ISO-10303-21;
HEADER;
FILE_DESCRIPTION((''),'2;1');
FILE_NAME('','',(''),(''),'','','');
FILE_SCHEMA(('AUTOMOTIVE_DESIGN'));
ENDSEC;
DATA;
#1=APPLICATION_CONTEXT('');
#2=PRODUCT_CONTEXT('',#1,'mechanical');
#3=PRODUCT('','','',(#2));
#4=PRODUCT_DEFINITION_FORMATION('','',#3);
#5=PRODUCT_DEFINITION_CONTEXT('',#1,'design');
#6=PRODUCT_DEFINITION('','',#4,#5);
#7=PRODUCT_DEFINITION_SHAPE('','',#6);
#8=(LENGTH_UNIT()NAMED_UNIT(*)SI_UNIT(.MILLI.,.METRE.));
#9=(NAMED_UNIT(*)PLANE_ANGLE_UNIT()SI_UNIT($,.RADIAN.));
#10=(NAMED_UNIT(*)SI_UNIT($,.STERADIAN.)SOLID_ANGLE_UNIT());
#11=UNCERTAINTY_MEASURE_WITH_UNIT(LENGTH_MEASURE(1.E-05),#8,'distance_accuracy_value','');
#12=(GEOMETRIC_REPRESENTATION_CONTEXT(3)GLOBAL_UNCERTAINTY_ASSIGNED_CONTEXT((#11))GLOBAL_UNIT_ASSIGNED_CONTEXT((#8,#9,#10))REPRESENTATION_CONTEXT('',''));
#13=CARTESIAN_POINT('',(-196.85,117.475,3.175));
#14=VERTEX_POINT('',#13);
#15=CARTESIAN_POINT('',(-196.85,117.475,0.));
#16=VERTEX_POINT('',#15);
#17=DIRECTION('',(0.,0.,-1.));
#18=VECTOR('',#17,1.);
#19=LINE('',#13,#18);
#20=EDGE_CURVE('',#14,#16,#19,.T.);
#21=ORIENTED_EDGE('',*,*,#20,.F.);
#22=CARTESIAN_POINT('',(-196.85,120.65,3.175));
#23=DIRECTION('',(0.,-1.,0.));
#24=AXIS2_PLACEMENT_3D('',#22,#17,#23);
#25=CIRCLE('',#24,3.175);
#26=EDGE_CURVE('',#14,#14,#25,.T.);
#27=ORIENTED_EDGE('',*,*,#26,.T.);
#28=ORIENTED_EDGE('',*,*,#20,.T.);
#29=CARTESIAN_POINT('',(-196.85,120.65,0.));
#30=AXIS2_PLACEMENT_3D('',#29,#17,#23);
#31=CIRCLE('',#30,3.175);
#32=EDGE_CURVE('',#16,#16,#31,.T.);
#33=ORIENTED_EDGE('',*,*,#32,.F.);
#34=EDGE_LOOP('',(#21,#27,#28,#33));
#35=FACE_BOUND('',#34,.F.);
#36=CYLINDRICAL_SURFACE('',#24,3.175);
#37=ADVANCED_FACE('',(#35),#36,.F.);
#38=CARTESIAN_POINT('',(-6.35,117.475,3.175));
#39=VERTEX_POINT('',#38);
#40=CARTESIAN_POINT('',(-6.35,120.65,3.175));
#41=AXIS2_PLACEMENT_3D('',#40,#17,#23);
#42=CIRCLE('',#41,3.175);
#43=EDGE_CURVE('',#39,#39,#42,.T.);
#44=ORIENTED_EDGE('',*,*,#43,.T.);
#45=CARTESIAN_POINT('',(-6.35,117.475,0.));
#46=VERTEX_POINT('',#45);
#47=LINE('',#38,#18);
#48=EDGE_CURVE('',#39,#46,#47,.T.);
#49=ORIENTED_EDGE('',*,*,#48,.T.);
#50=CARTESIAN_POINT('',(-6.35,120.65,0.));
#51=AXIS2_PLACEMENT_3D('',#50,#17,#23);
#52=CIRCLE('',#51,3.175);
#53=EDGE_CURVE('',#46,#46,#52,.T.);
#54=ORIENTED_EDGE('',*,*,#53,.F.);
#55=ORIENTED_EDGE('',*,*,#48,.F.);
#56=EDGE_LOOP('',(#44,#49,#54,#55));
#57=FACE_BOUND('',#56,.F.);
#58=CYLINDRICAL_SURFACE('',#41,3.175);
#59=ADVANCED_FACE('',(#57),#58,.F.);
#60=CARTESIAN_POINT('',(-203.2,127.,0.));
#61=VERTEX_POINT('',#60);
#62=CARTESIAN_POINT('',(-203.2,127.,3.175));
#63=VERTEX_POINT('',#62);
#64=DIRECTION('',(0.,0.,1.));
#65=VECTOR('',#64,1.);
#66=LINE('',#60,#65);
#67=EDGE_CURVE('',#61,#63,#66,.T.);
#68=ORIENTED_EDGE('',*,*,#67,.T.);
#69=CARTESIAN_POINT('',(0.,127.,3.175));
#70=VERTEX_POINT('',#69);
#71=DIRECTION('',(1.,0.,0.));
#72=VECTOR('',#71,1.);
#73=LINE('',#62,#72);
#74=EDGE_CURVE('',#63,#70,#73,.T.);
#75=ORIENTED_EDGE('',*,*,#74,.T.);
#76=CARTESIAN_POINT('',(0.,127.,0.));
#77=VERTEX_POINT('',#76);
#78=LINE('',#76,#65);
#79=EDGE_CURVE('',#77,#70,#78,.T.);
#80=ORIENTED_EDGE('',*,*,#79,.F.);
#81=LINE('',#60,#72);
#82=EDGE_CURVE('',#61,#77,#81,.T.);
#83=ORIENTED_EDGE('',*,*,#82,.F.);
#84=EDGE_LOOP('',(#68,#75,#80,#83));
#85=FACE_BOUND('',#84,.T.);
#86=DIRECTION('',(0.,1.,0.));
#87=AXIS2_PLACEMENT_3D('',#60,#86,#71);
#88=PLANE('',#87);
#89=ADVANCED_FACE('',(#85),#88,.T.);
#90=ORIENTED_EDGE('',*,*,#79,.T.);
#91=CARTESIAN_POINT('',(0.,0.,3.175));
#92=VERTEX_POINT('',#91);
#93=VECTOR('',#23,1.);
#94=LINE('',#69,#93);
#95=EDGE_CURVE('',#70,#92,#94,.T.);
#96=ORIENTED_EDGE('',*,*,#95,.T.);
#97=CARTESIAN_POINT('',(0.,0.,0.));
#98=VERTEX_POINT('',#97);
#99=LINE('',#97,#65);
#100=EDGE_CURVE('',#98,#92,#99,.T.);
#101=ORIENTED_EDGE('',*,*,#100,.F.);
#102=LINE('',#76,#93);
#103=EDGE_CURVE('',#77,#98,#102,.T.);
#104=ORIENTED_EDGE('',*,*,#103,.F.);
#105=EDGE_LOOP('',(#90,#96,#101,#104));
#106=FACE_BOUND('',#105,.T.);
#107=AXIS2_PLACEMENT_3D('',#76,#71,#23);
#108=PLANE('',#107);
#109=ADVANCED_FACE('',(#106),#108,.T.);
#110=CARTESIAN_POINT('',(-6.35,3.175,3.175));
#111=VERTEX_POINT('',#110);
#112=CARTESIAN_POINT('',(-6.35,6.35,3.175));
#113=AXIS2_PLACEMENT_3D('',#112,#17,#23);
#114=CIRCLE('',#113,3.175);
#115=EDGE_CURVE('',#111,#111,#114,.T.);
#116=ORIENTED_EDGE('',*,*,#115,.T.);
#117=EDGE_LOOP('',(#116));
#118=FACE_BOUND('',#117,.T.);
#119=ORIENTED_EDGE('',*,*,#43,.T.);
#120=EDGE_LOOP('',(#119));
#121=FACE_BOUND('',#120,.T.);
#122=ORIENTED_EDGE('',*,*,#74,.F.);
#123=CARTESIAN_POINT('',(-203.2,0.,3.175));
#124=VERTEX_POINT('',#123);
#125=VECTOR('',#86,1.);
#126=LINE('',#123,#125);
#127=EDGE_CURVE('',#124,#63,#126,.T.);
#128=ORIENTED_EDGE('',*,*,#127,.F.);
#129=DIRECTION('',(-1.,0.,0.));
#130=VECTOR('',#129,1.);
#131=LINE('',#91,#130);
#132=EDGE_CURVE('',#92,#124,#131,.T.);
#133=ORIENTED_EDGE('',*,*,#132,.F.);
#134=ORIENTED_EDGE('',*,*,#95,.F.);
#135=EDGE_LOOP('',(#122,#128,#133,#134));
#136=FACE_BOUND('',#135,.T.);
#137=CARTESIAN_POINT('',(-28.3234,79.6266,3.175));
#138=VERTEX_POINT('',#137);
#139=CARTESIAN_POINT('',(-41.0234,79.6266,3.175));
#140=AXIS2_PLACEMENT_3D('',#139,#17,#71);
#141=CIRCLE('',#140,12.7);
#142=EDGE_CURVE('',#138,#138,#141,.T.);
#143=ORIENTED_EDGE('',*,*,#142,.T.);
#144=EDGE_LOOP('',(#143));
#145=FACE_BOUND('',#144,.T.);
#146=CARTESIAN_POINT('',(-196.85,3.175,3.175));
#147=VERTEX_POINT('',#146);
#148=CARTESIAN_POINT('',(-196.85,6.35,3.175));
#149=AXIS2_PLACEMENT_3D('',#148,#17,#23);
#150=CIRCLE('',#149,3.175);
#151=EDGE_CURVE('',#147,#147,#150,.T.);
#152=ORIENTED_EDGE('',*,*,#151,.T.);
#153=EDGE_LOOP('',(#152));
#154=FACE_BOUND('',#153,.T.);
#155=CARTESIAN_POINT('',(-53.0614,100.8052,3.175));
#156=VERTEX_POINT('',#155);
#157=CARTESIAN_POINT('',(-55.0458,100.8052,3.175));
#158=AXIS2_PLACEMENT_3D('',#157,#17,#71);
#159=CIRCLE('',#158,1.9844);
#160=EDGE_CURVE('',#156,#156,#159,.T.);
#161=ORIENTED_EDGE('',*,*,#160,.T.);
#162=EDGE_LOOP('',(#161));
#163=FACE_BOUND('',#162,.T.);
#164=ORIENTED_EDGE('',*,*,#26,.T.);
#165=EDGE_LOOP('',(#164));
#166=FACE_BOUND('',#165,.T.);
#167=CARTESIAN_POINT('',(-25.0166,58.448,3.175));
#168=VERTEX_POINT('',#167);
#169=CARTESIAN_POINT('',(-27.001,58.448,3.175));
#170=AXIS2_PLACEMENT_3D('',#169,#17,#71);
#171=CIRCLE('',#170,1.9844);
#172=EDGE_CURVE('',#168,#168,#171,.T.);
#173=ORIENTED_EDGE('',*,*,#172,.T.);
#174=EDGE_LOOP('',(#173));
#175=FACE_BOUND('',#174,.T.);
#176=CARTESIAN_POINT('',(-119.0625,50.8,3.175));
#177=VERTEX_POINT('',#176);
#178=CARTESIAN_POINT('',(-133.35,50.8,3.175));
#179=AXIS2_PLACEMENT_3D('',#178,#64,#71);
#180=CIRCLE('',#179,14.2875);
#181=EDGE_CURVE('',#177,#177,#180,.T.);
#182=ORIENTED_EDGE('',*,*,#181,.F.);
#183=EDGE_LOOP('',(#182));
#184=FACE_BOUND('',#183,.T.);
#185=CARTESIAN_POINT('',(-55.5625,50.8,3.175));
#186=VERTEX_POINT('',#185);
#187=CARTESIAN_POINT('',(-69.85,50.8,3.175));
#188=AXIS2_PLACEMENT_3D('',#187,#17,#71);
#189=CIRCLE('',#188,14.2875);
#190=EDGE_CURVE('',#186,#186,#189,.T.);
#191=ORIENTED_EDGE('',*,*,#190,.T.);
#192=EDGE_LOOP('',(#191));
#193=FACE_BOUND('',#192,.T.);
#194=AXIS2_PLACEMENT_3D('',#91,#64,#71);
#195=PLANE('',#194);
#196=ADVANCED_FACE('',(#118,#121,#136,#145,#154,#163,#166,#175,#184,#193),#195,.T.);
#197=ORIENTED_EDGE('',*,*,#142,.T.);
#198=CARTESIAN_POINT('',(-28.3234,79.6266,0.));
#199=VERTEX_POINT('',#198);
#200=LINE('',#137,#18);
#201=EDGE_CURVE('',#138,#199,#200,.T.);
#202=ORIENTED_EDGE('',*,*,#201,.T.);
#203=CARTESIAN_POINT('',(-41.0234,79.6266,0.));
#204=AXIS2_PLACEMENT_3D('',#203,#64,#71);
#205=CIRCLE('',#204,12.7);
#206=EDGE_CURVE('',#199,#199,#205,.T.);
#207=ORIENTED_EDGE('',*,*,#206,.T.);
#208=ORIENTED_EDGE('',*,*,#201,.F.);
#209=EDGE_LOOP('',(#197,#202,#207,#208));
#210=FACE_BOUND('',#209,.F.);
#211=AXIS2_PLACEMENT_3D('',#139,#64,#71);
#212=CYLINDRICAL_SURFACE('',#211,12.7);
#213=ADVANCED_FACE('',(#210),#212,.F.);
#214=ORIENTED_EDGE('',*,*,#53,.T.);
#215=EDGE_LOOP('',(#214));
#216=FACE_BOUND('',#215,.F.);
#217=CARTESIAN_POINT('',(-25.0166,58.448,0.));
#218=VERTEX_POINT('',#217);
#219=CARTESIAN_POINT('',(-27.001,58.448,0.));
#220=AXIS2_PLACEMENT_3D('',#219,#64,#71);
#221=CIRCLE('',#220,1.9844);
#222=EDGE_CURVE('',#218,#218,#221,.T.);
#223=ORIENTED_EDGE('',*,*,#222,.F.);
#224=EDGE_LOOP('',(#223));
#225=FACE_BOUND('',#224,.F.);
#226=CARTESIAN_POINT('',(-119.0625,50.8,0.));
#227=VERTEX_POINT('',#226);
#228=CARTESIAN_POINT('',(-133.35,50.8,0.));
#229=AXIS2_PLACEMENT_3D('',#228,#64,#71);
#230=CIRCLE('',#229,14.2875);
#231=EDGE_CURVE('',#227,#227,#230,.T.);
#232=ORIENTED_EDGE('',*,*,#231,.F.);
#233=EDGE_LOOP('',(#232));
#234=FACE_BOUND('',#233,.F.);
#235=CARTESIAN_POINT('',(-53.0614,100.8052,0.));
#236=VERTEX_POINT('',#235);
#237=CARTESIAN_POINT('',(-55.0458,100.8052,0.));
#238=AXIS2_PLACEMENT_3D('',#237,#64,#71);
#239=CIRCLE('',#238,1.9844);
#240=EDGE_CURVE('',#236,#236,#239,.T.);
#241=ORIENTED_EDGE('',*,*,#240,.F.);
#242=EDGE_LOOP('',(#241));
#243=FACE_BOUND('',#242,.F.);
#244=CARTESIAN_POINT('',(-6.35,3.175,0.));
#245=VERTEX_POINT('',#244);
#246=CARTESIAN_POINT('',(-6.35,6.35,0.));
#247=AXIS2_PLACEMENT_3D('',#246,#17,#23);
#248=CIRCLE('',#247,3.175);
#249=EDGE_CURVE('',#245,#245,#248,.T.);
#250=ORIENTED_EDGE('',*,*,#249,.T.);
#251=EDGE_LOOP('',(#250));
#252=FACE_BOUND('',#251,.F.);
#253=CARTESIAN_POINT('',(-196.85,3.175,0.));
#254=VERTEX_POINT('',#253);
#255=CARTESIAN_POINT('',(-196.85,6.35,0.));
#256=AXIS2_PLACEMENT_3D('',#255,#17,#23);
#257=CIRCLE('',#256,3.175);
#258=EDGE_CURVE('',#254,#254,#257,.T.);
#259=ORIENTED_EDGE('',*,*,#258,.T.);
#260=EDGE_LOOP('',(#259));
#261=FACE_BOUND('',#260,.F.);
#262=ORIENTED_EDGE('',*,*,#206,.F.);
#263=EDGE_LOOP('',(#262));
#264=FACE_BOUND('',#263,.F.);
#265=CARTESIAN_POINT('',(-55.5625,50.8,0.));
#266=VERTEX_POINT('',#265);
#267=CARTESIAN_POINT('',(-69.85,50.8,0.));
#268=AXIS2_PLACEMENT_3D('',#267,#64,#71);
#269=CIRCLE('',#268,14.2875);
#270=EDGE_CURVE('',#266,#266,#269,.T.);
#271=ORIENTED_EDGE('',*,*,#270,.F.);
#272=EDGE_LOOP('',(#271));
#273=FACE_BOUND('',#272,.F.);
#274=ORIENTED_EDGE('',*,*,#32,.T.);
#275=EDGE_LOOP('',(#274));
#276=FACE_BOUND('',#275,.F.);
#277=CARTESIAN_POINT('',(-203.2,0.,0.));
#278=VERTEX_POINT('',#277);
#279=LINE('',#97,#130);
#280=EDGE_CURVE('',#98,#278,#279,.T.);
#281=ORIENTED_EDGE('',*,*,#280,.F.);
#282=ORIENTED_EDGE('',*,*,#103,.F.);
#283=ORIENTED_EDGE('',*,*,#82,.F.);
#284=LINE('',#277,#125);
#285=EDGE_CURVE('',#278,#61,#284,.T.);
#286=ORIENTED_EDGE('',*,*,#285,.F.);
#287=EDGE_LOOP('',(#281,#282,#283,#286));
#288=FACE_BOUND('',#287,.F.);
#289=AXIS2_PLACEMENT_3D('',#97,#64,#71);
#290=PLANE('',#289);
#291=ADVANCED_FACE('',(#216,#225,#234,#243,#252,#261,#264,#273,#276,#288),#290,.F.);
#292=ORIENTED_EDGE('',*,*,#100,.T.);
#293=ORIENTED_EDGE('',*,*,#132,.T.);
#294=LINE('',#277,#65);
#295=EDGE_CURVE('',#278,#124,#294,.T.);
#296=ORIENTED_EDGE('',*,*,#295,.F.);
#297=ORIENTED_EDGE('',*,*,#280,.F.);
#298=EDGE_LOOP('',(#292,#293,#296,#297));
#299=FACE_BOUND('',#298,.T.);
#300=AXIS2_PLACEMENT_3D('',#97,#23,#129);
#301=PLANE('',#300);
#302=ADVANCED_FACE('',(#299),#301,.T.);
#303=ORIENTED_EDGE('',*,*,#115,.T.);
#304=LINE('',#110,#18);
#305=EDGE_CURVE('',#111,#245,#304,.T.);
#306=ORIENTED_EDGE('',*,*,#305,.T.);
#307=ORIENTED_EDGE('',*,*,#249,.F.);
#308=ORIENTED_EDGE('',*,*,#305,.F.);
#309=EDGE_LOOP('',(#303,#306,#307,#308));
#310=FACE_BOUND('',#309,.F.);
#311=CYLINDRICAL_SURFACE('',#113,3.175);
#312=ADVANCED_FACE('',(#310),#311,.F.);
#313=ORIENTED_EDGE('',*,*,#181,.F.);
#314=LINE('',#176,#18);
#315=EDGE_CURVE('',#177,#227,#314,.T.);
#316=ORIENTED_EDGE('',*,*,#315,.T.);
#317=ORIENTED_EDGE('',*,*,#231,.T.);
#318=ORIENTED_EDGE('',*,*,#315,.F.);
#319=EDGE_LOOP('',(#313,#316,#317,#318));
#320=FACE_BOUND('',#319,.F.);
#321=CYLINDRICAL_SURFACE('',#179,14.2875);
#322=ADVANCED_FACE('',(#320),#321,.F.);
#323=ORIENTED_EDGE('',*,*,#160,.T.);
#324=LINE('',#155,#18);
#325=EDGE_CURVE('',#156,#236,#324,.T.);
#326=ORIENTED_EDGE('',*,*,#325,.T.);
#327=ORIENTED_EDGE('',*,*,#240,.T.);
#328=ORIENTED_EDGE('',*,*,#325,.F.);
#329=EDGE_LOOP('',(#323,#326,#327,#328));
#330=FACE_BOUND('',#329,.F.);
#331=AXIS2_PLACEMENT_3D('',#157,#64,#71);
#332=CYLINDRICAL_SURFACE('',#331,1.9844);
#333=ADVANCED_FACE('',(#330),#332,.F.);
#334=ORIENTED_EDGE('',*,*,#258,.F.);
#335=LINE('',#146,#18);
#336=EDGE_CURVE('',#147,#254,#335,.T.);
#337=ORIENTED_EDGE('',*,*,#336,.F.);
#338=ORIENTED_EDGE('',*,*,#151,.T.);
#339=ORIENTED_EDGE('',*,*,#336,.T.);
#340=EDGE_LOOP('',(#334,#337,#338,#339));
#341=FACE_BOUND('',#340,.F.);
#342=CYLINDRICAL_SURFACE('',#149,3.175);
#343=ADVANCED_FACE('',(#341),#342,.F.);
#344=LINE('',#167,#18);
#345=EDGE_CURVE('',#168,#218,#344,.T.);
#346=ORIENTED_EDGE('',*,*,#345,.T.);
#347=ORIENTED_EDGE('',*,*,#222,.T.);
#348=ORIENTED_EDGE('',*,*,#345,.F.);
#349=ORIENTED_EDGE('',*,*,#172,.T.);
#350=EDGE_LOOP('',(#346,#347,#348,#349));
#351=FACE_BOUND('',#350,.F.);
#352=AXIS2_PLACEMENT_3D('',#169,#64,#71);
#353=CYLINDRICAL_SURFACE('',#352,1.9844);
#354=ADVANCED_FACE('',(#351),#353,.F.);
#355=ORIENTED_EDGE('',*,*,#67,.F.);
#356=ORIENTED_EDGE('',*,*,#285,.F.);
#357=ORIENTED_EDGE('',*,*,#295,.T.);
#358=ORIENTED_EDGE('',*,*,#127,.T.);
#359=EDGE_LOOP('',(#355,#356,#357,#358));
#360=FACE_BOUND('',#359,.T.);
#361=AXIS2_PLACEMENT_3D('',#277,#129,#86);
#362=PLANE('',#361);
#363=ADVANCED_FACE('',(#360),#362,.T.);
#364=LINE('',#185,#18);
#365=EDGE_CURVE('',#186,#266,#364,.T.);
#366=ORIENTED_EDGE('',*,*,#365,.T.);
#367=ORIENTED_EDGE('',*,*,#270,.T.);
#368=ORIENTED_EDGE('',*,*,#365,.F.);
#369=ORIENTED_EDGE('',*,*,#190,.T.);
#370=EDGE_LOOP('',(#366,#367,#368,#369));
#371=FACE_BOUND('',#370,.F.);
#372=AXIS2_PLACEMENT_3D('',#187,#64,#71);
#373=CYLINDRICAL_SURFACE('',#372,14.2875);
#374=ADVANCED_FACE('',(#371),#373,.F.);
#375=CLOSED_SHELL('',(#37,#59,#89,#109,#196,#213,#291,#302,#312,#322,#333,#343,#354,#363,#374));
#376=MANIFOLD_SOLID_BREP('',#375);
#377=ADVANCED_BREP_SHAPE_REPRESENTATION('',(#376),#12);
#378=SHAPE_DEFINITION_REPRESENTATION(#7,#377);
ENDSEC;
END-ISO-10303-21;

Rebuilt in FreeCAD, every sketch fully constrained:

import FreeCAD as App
import Part
import Sketcher

V = App.Vector
Q = App.Units.Quantity


def add_polygon(sketch, points):
    """Adds a closed chain of lines whose ends are joined by coincident constraints."""
    first, n = sketch.GeometryCount, len(points)
    for a, b in zip(points, points[1:] + points[:1]):
        sketch.addGeometry(Part.LineSegment(App.Vector(*a, 0), App.Vector(*b, 0)), False)
    for i in range(n):
        sketch.addConstraint(Sketcher.Constraint("Coincident", first + i, 2, first + (i + 1) % n, 1))

doc = App.newDocument("Part")
body = doc.addObject("PartDesign::Body", "Body")

# Sketch on XY plane
sketch1 = body.newObject("Sketcher::SketchObject", "Sketch")
sketch1.AttachmentSupport = (doc.getObject("XY_Plane"), [""])
sketch1.MapMode = "FlatFace"
add_polygon(sketch1, [(-203, 0), (0, 0), (0, 127), (-203, 127)])  # lines 0-3
sketch1.addConstraint([
    Sketcher.Constraint("Horizontal", 0),
    Sketcher.Constraint("Vertical", 1),
    Sketcher.Constraint("Horizontal", 2),
    Sketcher.Constraint("Vertical", 3),
    Sketcher.Constraint("Coincident", 0, 2, -1, 1),
    Sketcher.Constraint("DistanceX", 0, 1, 0, 2, Q("8 in")),
    Sketcher.Constraint("DistanceY", 1, 1, 1, 2, Q("5 in")),
])
pad1 = body.newObject("PartDesign::Pad", "Pad")
pad1.Profile = sketch1
pad1.Length = Q("0.125 in")

# Sketch on XY plane
sketch2 = body.newObject("Sketcher::SketchObject", "Sketch001")
sketch2.AttachmentSupport = (doc.getObject("XY_Plane"), [""])
sketch2.MapMode = "FlatFace"
sketch2.AttachmentOffset = App.Placement(V(0, 0, 0.125 * 25.4), App.Rotation())
sketch2.addGeometry([
    Part.Circle(V(-70, 51, 0), V(0, 0, 1), 14),
    Part.Circle(V(-133, 51, 0), V(0, 0, 1), 14),
], False)
sketch2.addConstraint([
    Sketcher.Constraint("Equal", 0, 1),
    Sketcher.Constraint("Horizontal", 0, 3, 1, 3),
    Sketcher.Constraint("Diameter", 0, Q("1.125 in")),
    Sketcher.Constraint("DistanceY", -1, 1, 0, 3, Q("2 in")),
    Sketcher.Constraint("DistanceX", 1, 3, 0, 3, Q("2.5 in")),
    Sketcher.Constraint("DistanceX", 0, 3, -1, 1, Q("2.75 in")),
])
pocket1 = body.newObject("PartDesign::Pocket", "Pocket")
pocket1.Profile = sketch2
pocket1.Length = Q("0.125 in")

# Sketch on XY plane
sketch3 = body.newObject("Sketcher::SketchObject", "Sketch002")
sketch3.AttachmentSupport = (doc.getObject("XY_Plane"), [""])
sketch3.MapMode = "FlatFace"
sketch3.AttachmentOffset = App.Placement(V(0, 0, 0.125 * 25.4), App.Rotation())
sketch3.addGeometry([
    Part.Circle(V(-196.8, 120.7, 0), V(0, 0, 1), 3.2),
    Part.Circle(V(-196.8, 6.3, 0), V(0, 0, 1), 3.2),
    Part.Circle(V(-6.3, 6.3, 0), V(0, 0, 1), 3.2),
    Part.Circle(V(-6.3, 120.7, 0), V(0, 0, 1), 3.2),
], False)
sketch3.addConstraint([
    Sketcher.Constraint("Equal", 0, 1),
    Sketcher.Constraint("Equal", 1, 2),
    Sketcher.Constraint("Equal", 2, 3),
    Sketcher.Constraint("Horizontal", 1, 3, 2, 3),
    Sketcher.Constraint("Horizontal", 0, 3, 3, 3),
    Sketcher.Constraint("Vertical", 0, 3, 1, 3),
    Sketcher.Constraint("Vertical", 2, 3, 3, 3),
    Sketcher.Constraint("Diameter", 0, Q("0.25 in")),
    Sketcher.Constraint("DistanceY", 1, 3, 0, 3, Q("4.5 in")),
    Sketcher.Constraint("DistanceX", 1, 3, 2, 3, Q("7.5 in")),
    Sketcher.Constraint("DistanceX", 0, 3, -1, 1, Q("7.75 in")),
    Sketcher.Constraint("DistanceY", -1, 1, 0, 3, Q("4.75 in")),
])
doc.recompute()
hole = body.newObject("PartDesign::Hole", "Hole")
hole.Profile = sketch3
hole.ThreadType = "None"
hole.Diameter = Q("0.25 in")
hole.DepthType = "ThroughAll"

# Sketch on XY plane
sketch4 = body.newObject("Sketcher::SketchObject", "Sketch003")
sketch4.AttachmentSupport = (doc.getObject("XY_Plane"), [""])
sketch4.MapMode = "FlatFace"
sketch4.AttachmentOffset = App.Placement(V(0, 0, 0.125 * 25.4), App.Rotation())
sketch4.addGeometry(Part.Circle(V(-41, 80, 0), V(0, 0, 1), 13), False)
sketch4.addConstraint([
    Sketcher.Constraint("Diameter", 0, Q("1 in")),
    Sketcher.Constraint("DistanceX", 0, 3, -1, 1, Q("1.6151 in")),
    Sketcher.Constraint("DistanceY", -1, 1, 0, 3, Q("3.1349 in")),
])
pocket2 = body.newObject("PartDesign::Pocket", "Pocket001")
pocket2.Profile = sketch4
pocket2.Type = "ThroughAll"

# Sketch on XY plane
sketch5 = body.newObject("Sketcher::SketchObject", "Sketch004")
sketch5.AttachmentSupport = (doc.getObject("XY_Plane"), [""])
sketch5.MapMode = "FlatFace"
sketch5.AttachmentOffset = App.Placement(V(0, 0, 0.125 * 25.4), App.Rotation())
sketch5.addGeometry([
    Part.Circle(V(-27, 58.4, 0), V(0, 0, 1), 2),
    Part.Circle(V(-55, 100.8, 0), V(0, 0, 1), 2),
], False)
sketch5.addConstraint([
    Sketcher.Constraint("Equal", 0, 1),
    Sketcher.Constraint("Diameter", 0, Q("0.156252 in")),
    Sketcher.Constraint("DistanceY", -1, 1, 0, 3, Q("2.3011 in")),
    Sketcher.Constraint("DistanceY", -1, 1, 1, 3, Q("3.9687 in")),
    Sketcher.Constraint("DistanceX", 0, 3, -1, 1, Q("27.001 mm")),
    Sketcher.Constraint("DistanceX", 1, 3, -1, 1, Q("55.0458 mm")),
])
pocket3 = body.newObject("PartDesign::Pocket", "Pocket002")
pocket3.Profile = sketch5
pocket3.Length = Q("1 in")

doc.recompute()
